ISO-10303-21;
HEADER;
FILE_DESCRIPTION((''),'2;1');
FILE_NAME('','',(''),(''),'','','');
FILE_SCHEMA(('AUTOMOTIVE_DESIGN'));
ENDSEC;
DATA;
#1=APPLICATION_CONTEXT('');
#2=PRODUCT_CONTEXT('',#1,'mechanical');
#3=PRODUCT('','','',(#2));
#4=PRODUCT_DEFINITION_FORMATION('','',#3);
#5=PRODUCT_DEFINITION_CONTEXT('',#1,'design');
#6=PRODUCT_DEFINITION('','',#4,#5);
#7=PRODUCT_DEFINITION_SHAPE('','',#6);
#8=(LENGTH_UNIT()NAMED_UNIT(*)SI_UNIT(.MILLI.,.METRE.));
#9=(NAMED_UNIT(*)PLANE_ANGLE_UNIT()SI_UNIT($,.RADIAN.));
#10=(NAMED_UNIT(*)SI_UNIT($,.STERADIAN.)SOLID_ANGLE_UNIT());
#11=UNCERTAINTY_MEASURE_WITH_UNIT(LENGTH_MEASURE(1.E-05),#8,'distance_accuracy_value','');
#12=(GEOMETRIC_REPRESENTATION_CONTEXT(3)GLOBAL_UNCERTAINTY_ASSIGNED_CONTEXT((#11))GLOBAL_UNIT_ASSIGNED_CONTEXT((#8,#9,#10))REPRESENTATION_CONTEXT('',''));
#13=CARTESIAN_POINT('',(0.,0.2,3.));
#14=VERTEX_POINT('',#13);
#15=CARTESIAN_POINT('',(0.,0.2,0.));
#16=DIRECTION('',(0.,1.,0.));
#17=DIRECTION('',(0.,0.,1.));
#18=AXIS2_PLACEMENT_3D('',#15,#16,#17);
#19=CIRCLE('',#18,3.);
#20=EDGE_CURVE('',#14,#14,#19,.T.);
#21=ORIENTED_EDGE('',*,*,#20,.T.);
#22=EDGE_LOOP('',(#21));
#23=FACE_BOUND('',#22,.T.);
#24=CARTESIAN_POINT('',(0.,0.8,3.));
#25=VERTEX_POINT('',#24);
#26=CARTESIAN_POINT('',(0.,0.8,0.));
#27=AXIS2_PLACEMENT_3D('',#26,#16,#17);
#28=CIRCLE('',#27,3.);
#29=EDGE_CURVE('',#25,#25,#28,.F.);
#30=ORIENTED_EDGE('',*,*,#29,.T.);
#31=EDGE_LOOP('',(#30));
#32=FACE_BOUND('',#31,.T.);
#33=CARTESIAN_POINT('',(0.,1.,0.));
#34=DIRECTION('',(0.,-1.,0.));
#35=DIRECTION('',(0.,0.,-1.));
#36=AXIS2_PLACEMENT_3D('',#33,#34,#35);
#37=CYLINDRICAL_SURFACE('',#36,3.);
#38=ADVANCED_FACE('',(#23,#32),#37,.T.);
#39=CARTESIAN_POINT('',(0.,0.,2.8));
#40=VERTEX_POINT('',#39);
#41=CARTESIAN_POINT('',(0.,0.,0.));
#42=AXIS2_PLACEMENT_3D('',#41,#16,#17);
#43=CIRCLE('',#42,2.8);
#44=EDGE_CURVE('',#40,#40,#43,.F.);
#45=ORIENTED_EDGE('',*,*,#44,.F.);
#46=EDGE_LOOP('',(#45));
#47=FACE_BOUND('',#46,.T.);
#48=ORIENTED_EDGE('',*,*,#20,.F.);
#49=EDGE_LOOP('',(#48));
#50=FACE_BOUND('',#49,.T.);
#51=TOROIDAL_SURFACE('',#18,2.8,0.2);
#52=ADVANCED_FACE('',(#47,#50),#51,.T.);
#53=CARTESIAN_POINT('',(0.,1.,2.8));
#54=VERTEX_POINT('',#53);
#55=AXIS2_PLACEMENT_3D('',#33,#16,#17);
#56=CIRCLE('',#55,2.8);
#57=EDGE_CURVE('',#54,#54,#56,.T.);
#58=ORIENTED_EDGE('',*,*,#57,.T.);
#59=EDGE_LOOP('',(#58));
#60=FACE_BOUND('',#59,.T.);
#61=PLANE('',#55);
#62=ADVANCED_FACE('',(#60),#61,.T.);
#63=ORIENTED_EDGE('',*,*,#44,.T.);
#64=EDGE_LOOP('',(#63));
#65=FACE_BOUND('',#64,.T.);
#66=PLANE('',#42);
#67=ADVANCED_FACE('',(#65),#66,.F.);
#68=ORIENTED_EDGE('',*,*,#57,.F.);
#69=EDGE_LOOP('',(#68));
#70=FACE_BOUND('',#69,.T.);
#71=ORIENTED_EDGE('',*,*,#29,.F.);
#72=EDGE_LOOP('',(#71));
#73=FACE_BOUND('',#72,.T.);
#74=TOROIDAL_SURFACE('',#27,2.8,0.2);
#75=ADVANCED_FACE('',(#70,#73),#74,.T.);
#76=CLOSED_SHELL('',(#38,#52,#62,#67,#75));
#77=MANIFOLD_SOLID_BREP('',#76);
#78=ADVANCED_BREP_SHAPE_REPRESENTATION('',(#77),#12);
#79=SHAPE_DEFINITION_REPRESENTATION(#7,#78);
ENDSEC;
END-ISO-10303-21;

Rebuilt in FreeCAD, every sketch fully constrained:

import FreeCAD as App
import Part
import Sketcher

V = App.Vector
Q = App.Units.Quantity


def edges_at(feature, points):
    """Names of the edges that pass closest to the given points."""
    edges = feature.Shape.Edges
    near = lambda p: min(range(len(edges)), key=lambda i: edges[i].distToShape(Part.Vertex(*p))[0])
    return sorted({f"Edge{near(p) + 1}" for p in points})

doc = App.newDocument("Part")
body = doc.addObject("PartDesign::Body", "Body")

# Sketch on XZ plane
sketch1 = body.newObject("Sketcher::SketchObject", "Sketch")
sketch1.AttachmentSupport = (doc.getObject("XZ_Plane"), [""])
sketch1.MapMode = "FlatFace"
sketch1.addGeometry(Part.Circle(V(0, 0, 0), V(0, 0, 1), 3), False)
sketch1.addConstraint(Sketcher.Constraint("Coincident", 0, 3, -1, 1))
sketch1.addConstraint(Sketcher.Constraint("Diameter", 0, Q("6 mm")))
pad1 = body.newObject("PartDesign::Pad", "Pad")
pad1.Profile = sketch1
pad1.Length = 1
pad1.Reversed = True
doc.recompute()

fillet = body.newObject("PartDesign::Fillet", "Fillet")
fillet.Base = (pad1, edges_at(pad1, [(0, 0, -3), (0, 1, -3)]))
fillet.Radius = 0.2

doc.recompute()
